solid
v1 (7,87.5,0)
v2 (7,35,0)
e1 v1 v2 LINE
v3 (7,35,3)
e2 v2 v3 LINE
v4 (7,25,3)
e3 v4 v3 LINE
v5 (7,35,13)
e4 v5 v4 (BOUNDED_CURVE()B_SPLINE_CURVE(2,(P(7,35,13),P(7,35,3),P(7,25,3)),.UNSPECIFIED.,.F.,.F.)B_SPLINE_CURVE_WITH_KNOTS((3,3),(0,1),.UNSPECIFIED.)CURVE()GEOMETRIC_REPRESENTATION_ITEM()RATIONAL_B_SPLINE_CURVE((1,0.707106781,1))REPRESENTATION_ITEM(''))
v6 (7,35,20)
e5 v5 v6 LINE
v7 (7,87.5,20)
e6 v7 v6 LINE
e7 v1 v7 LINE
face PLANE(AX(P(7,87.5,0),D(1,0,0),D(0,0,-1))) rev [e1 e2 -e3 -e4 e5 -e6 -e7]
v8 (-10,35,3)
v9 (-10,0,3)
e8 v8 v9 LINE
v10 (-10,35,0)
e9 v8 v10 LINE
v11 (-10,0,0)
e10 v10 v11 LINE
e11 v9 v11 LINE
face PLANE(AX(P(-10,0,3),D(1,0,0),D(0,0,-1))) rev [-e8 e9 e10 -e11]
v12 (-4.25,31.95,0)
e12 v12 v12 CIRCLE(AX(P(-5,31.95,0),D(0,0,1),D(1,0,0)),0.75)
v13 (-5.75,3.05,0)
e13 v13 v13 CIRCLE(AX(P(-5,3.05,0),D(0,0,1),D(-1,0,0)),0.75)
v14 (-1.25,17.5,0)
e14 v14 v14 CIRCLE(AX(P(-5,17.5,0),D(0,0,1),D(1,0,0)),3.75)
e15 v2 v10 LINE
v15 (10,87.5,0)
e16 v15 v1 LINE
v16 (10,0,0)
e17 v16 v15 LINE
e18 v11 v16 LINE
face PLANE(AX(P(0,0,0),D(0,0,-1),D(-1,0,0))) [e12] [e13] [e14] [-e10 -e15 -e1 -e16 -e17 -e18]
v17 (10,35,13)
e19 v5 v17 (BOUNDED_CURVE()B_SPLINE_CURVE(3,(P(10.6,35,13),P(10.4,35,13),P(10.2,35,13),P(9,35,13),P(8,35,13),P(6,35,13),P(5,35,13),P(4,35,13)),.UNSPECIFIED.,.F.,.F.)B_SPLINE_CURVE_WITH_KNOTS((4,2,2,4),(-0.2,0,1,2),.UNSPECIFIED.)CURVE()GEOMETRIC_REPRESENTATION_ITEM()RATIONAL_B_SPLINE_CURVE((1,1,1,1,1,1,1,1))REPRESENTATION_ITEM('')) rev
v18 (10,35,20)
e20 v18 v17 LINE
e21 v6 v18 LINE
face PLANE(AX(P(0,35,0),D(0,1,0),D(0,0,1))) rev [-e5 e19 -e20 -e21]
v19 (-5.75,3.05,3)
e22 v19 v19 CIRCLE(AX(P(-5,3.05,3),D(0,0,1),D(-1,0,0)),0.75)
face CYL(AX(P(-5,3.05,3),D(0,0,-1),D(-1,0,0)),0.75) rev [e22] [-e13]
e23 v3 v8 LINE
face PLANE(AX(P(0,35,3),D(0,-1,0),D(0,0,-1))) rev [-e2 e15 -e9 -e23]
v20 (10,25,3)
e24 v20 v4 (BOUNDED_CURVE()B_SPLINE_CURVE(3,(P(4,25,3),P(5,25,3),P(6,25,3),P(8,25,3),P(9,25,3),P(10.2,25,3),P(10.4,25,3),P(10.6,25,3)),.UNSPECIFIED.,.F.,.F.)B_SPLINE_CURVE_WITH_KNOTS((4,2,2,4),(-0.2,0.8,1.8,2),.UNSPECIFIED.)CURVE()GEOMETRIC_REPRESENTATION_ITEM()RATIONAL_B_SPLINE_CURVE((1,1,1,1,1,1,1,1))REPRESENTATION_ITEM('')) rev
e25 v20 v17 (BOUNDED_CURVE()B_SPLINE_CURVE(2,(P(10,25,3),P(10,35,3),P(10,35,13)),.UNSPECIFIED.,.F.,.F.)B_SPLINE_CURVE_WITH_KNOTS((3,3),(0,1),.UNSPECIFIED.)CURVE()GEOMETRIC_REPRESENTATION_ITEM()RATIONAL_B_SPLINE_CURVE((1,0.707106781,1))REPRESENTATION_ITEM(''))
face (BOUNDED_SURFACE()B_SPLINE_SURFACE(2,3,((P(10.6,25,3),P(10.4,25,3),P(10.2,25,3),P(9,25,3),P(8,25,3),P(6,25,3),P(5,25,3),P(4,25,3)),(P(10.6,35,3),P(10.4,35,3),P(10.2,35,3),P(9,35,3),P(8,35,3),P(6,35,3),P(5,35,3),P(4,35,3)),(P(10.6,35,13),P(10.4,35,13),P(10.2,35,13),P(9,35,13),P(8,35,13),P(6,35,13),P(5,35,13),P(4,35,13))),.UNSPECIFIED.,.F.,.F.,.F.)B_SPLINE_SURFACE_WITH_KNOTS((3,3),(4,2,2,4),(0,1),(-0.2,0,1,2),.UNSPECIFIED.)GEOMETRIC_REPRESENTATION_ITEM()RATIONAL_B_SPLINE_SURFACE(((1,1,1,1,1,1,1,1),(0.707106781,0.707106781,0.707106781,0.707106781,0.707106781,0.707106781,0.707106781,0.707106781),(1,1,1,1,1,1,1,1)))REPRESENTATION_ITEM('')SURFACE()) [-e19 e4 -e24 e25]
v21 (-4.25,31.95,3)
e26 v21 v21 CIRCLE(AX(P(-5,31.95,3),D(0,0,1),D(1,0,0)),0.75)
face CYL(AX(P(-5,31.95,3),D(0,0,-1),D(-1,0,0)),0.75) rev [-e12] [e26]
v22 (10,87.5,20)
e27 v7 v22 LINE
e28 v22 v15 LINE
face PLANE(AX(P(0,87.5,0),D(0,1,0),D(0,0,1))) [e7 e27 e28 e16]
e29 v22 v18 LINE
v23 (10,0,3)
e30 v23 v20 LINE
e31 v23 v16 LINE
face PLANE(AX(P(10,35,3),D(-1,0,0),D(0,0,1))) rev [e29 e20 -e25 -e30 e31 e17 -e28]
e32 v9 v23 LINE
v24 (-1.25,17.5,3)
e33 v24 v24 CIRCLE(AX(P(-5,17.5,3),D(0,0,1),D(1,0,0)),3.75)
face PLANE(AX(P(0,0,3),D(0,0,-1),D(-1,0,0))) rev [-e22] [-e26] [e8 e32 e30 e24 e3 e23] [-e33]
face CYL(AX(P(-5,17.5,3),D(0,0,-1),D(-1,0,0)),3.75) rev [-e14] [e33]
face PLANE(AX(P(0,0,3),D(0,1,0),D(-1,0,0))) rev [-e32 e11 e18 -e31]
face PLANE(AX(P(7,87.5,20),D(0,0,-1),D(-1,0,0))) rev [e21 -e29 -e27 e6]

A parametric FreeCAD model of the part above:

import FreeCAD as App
import Part
import Sketcher
from FreeCAD import Vector
Q = App.Units.Quantity


def edges_at(feature, points):
    """Names of the edges that pass closest to the given points."""
    edges = feature.Shape.Edges
    near = lambda p: min(range(len(edges)), key=lambda i: edges[i].distToShape(Part.Vertex(*p))[0])
    return sorted({f"Edge{near(p) + 1}" for p in points})


def add_polygon(sketch, points):
    """Adds a closed chain of lines whose ends are joined by coincident constraints."""
    first, n = sketch.GeometryCount, len(points)
    for a, b in zip(points, points[1:] + points[:1]):
        sketch.addGeometry(Part.LineSegment(App.Vector(*a, 0), App.Vector(*b, 0)), False)
    for i in range(n):
        sketch.addConstraint(Sketcher.Constraint("Coincident", first + i, 2, first + (i + 1) % n, 1))

doc = App.newDocument("Part")
body = doc.addObject("PartDesign::Body", "Body")

sketch1 = body.newObject("Sketcher::SketchObject", "Sketch")
sketch1.AttachmentSupport = (doc.getObject("XY_Plane"), [""])
sketch1.MapMode = "FlatFace"
add_polygon(sketch1, [(-10, 0), (10, 0), (10, 35), (-10, 35)])
sketch1.addGeometry(Part.Circle(Vector(-5, 3, 0), Vector(0, 0, 1), 0.8), False)
sketch1.addGeometry(Part.Circle(Vector(-5, 17.5, 0), Vector(0, 0, 1), 3.8), False)
sketch1.addGeometry(Part.Circle(Vector(-5, 31.9, 0), Vector(0, 0, 1), 0.8), False)
sketch1.addConstraint([
    Sketcher.Constraint("Horizontal", 0),
    Sketcher.Constraint("Vertical", 1),
    Sketcher.Constraint("Horizontal", 2),
    Sketcher.Constraint("Vertical", 3),
    Sketcher.Constraint("Equal", 4, 6),
    Sketcher.Constraint("Symmetric", 0, 2, 3, 2, -1, 1),
    Sketcher.Constraint("Vertical", 4, 3, 5, 3),
    Sketcher.Constraint("Vertical", 5, 3, 6, 3),
    Sketcher.Constraint("Diameter", 4, Q("1.5 mm")),
    Sketcher.Constraint("Diameter", 5, Q("7.5 mm")),
    Sketcher.Constraint("DistanceX", 0, 1, 0, 2, Q("20 mm")),
    Sketcher.Constraint("DistanceY", 1, 1, 1, 2, Q("35 mm")),
    Sketcher.Constraint("DistanceX", 4, 3, -1, 1, Q("5 mm")),
    Sketcher.Constraint("DistanceY", -1, 1, 5, 3, Q("17.5 mm")),
    Sketcher.Constraint("DistanceY", 4, 3, 6, 3, Q("28.9 mm")),
    Sketcher.Constraint("DistanceY", -1, 1, 4, 3, Q("3.05 mm")),
])
pad1 = body.newObject("PartDesign::Pad", "Pad")
pad1.Profile = sketch1
pad1.Length = 3

sketch2 = body.newObject("Sketcher::SketchObject", "Sketch001")
sketch2.AttachmentSupport = (doc.getObject("XZ_Plane"), [""])
sketch2.MapMode = "FlatFace"
sketch2.AttachmentOffset = App.Placement(Vector(0, 0, -35), App.Rotation())
add_polygon(sketch2, [(7, 0), (7, 20), (10, 20), (10, 0)])
sketch2.addConstraint([
    Sketcher.Constraint("Vertical", 0),
    Sketcher.Constraint("Horizontal", 1),
    Sketcher.Constraint("Vertical", 2),
    Sketcher.Constraint("Horizontal", 3),
    Sketcher.Constraint("PointOnObject", 2, 2, -1),
    Sketcher.Constraint("DistanceX", 1, 1, 1, 2, Q("3 mm")),
    Sketcher.Constraint("DistanceY", 0, 1, 0, 2, Q("20 mm")),
    Sketcher.Constraint("DistanceX", -1, 1, 0, 2, Q("7 mm")),
])
pad2 = body.newObject("PartDesign::Pad", "Pad001")
pad2.Profile = sketch2
pad2.Length = 52.5
pad2.Reversed = True
doc.recompute()

fillet = body.newObject("PartDesign::Fillet", "Fillet")
fillet.Base = (pad2, edges_at(pad2, [(8.5, 35, 3)]))
fillet.Radius = 10

doc.recompute()
